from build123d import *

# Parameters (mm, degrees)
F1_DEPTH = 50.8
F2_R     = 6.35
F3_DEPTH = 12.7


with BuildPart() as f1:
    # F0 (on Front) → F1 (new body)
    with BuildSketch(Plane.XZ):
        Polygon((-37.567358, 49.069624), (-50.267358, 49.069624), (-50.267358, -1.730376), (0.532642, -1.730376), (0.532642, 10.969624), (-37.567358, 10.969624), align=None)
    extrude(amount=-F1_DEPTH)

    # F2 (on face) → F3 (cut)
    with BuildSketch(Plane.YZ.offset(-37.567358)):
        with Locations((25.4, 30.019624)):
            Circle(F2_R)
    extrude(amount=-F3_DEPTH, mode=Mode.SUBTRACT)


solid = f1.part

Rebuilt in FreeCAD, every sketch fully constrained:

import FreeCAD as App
import Part
import Sketcher

V = App.Vector
Q = App.Units.Quantity

doc = App.newDocument("Part")
body = doc.addObject("PartDesign::Body", "Body")

sketch1 = body.newObject("Sketcher::SketchObject", "Sketch")
sketch1.AttachmentSupport = (doc.getObject("XZ_Plane"), [""])
sketch1.MapMode = "FlatFace"
sketch1.addGeometry(Part.LineSegment(V(-38, 49, 0), V(-50, 49, 0)), False)
sketch1.addGeometry(Part.LineSegment(V(-50, 49, 0), V(-50, -2, 0)), False)
sketch1.addGeometry(Part.LineSegment(V(-50, -2, 0), V(1, -2, 0)), False)
sketch1.addGeometry(Part.LineSegment(V(1, -2, 0), V(1, 11, 0)), False)
sketch1.addGeometry(Part.LineSegment(V(1, 11, 0), V(-38, 11, 0)), False)
sketch1.addGeometry(Part.LineSegment(V(-38, 11, 0), V(-38, 49, 0)), False)
sketch1.addConstraint(Sketcher.Constraint("Coincident", 0, 2, 1, 1))
sketch1.addConstraint(Sketcher.Constraint("Coincident", 1, 2, 2, 1))
sketch1.addConstraint(Sketcher.Constraint("Coincident", 2, 2, 3, 1))
sketch1.addConstraint(Sketcher.Constraint("Coincident", 3, 2, 4, 1))
sketch1.addConstraint(Sketcher.Constraint("Coincident", 4, 2, 5, 1))
sketch1.addConstraint(Sketcher.Constraint("Coincident", 5, 2, 0, 1))
sketch1.addConstraint(Sketcher.Constraint("Horizontal", 0))
sketch1.addConstraint(Sketcher.Constraint("Vertical", 1))
sketch1.addConstraint(Sketcher.Constraint("Horizontal", 2))
sketch1.addConstraint(Sketcher.Constraint("Vertical", 3))
sketch1.addConstraint(Sketcher.Constraint("Horizontal", 4))
sketch1.addConstraint(Sketcher.Constraint("Vertical", 5))
sketch1.addConstraint(Sketcher.Constraint("Equal", 2, 1))
sketch1.addConstraint(Sketcher.Constraint("Equal", 0, 3))
sketch1.addConstraint(Sketcher.Constraint("DistanceX", 2, 1, 2, 2, Q("2 in")))
sketch1.addConstraint(Sketcher.Constraint("DistanceX", 0, 2, 0, 1, Q("0.5 in")))
sketch1.addConstraint(Sketcher.Constraint("DistanceX", 0, 2, -1, 1, Q("50.267358 mm")))
sketch1.addConstraint(Sketcher.Constraint("DistanceY", -1, 1, 0, 2, Q("49.069624 mm")))
pad1 = body.newObject("PartDesign::Pad", "Pad")
pad1.Profile = sketch1
pad1.Length = Q("2 in")
pad1.Reversed = True

sketch2 = body.newObject("Sketcher::SketchObject", "Sketch001")
sketch2.AttachmentSupport = (doc.getObject("YZ_Plane"), [""])
sketch2.MapMode = "FlatFace"
sketch2.AttachmentOffset = App.Placement(V(0, 0, -37.567358), App.Rotation())
sketch2.addGeometry(Part.Circle(V(25, 30, 0), V(0, 0, 1), 6), False)
sketch2.addConstraint(Sketcher.Constraint("Diameter", 0, Q("0.5 in")))
sketch2.addConstraint(Sketcher.Constraint("DistanceX", -1, 1, 0, 3, Q("1 in")))
sketch2.addConstraint(Sketcher.Constraint("DistanceY", -1, 1, 0, 3, Q("30.019624 mm")))
pocket1 = body.newObject("PartDesign::Pocket", "Pocket")
pocket1.Profile = sketch2
pocket1.Length = Q("0.5 in")

doc.recompute()
